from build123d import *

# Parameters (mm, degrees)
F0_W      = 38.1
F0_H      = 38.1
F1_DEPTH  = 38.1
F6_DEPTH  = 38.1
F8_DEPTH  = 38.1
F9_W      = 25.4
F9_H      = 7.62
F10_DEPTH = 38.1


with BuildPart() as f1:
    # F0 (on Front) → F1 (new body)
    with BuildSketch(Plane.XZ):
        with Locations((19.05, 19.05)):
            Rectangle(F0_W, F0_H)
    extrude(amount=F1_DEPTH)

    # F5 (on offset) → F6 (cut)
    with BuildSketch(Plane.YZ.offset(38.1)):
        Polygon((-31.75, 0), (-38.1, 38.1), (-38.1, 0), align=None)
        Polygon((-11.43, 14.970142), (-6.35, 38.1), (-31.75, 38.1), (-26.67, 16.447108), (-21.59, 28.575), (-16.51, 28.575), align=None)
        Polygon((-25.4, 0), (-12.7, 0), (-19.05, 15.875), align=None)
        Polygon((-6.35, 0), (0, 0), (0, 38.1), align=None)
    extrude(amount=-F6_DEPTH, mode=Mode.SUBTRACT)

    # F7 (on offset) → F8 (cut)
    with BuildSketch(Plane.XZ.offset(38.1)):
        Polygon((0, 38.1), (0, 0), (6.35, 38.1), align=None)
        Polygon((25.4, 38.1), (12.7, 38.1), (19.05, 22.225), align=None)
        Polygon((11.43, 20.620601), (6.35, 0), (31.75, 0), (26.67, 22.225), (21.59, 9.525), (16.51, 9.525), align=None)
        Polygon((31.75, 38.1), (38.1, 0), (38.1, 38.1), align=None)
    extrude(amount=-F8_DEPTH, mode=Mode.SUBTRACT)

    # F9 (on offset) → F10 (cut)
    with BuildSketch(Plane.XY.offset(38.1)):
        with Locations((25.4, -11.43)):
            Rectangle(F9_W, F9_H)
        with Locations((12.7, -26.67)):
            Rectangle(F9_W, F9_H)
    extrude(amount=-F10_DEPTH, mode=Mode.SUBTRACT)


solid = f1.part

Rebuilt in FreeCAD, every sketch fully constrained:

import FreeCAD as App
import Part
import Sketcher
Q = App.Units.Quantity


def add_polygon(sketch, points):
    """Adds a closed chain of lines whose ends are joined by coincident constraints."""
    first, n = sketch.GeometryCount, len(points)
    for a, b in zip(points, points[1:] + points[:1]):
        sketch.addGeometry(Part.LineSegment(App.Vector(*a, 0), App.Vector(*b, 0)), False)
    for i in range(n):
        sketch.addConstraint(Sketcher.Constraint("Coincident", first + i, 2, first + (i + 1) % n, 1))

doc = App.newDocument("Part")
body = doc.addObject("PartDesign::Body", "Body")

# Sketch on XZ plane
sketch1 = body.newObject("Sketcher::SketchObject", "Sketch")
sketch1.AttachmentSupport = (doc.getObject("XZ_Plane"), [""])
sketch1.MapMode = "FlatFace"
add_polygon(sketch1, [(0, 38), (0, 0), (38, 0), (38, 38)])  # lines 0-3
sketch1.addConstraint([
    Sketcher.Constraint("Vertical", 0),
    Sketcher.Constraint("Horizontal", 1),
    Sketcher.Constraint("Vertical", 2),
    Sketcher.Constraint("Horizontal", 3),
    Sketcher.Constraint("Coincident", 0, 2, -1, 1),
    Sketcher.Constraint("Equal", 3, 0),
    Sketcher.Constraint("DistanceX", 1, 1, 1, 2, Q("1.5 in")),
])
pad1 = body.newObject("PartDesign::Pad", "Pad")
pad1.Profile = sketch1
pad1.Length = Q("1.5 in")

# Sketch on YZ plane
sketch2 = body.newObject("Sketcher::SketchObject", "Sketch001")
sketch2.AttachmentSupport = (doc.getObject("YZ_Plane"), [""])
sketch2.MapMode = "FlatFace"
sketch2.AttachmentOffset = App.Placement(App.Vector(0, 0, 1.5 * 25.4), App.Rotation())
add_polygon(sketch2, [(-32, 0), (-38, 38), (-38, 0)])  # lines 0-2
add_polygon(sketch2, [(-11, 15), (-6, 38), (-32, 38), (-27, 16), (-22, 29), (-17, 29)])  # lines 3-8
add_polygon(sketch2, [(-25, 0), (-13, 0), (-19, 16)])  # lines 9-11
add_polygon(sketch2, [(-6, 0), (0, 0), (0, 38)])  # lines 12-14
sketch2.addConstraint([
    Sketcher.Constraint("Vertical", 1),
    Sketcher.Constraint("Horizontal", 2),
    Sketcher.Constraint("Horizontal", 4),
    Sketcher.Constraint("Horizontal", 7),
    Sketcher.Constraint("Horizontal", 9),
    Sketcher.Constraint("Horizontal", 12),
    Sketcher.Constraint("Vertical", 13),
    Sketcher.Constraint("Coincident", 12, 2, -1, 1),
    Sketcher.Constraint("PointOnObject", 1, 2, -1),
    Sketcher.Constraint("PointOnObject", 9, 2, -1),
    Sketcher.Constraint("Horizontal", 0, 2, 3, 2),
    Sketcher.Constraint("Horizontal", 4, 2, 13, 2),
    Sketcher.Constraint("Vertical", 2, 2, 4, 2),
    Sketcher.Constraint("Vertical", 3, 2, 14, 2),
    Sketcher.Constraint("Equal", 2, 12),
    Sketcher.Constraint("Equal", 10, 11),
    Sketcher.Constraint("DistanceX", 4, 2, 4, 1, Q("1 in")),
    Sketcher.Constraint("DistanceX", 7, 1, 7, 2, Q("0.2 in")),
    Sketcher.Constraint("DistanceX", 9, 1, 9, 2, Q("0.5 in")),
    Sketcher.Constraint("DistanceY", 1, 2, 1, 1, Q("1.5 in")),
    Sketcher.Constraint("DistanceX", 11, 2, -1, 1, Q("1 in")),
    Sketcher.Constraint("DistanceX", 1, 2, 9, 2, Q("1 in")),
    Sketcher.Constraint("DistanceX", 2, 2, 5, 2, Q("0.2 in")),
    Sketcher.Constraint("DistanceX", 5, 2, 6, 2, Q("0.2 in")),
    Sketcher.Constraint("DistanceX", 7, 2, 8, 2, Q("0.2 in")),
    Sketcher.Constraint("DistanceY", 10, 2, 6, 2, Q("0.5 in")),
    Sketcher.Constraint("DistanceY", -1, 1, 6, 2, Q("1.125 in")),
    Sketcher.Constraint("Distance", 5, 22.240821),
    Sketcher.Constraint("DistanceY", -1, 1, 8, 2, 14.970142),
])
pocket1 = body.newObject("PartDesign::Pocket", "Pocket")
pocket1.Profile = sketch2
pocket1.Length = Q("1.5 in")

# Sketch on XZ plane
sketch3 = body.newObject("Sketcher::SketchObject", "Sketch002")
sketch3.AttachmentSupport = (doc.getObject("XZ_Plane"), [""])
sketch3.MapMode = "FlatFace"
sketch3.AttachmentOffset = App.Placement(App.Vector(0, 0, 1.5 * 25.4), App.Rotation())
add_polygon(sketch3, [(0, 38), (0, 0), (6, 38)])  # lines 0-2
add_polygon(sketch3, [(25, 38), (13, 38), (19, 22)])  # lines 3-5
add_polygon(sketch3, [(11, 21), (6, 0), (32, 0), (27, 22), (22, 10), (17, 10)])  # lines 6-11
add_polygon(sketch3, [(32, 38), (38, 0), (38, 38)])  # lines 12-14
sketch3.addConstraint([
    Sketcher.Constraint("Vertical", 0),
    Sketcher.Constraint("Horizontal", 2),
    Sketcher.Constraint("Horizontal", 3),
    Sketcher.Constraint("Horizontal", 7),
    Sketcher.Constraint("Horizontal", 10),
    Sketcher.Constraint("Vertical", 13),
    Sketcher.Constraint("Horizontal", 14),
    Sketcher.Constraint("Coincident", 0, 2, -1, 1),
    Sketcher.Constraint("PointOnObject", 6, 2, -1),
    Sketcher.Constraint("PointOnObject", 12, 2, -1),
    Sketcher.Constraint("Parallel", 5, 9),
    Sketcher.Constraint("Horizontal", 2, 2, 3, 2),
    Sketcher.Constraint("Horizontal", 4, 2, 8, 2),
    Sketcher.Constraint("Horizontal", 5, 2, 13, 2),
    Sketcher.Constraint("Vertical", 1, 2, 6, 2),
    Sketcher.Constraint("Vertical", 7, 2, 14, 2),
    Sketcher.Constraint("Equal", 2, 14),
    Sketcher.Constraint("Equal", 4, 5),
    Sketcher.Constraint("DistanceX", 7, 1, 7, 2, Q("1 in")),
    Sketcher.Constraint("DistanceX", 3, 2, 3, 1, Q("0.5 in")),
    Sketcher.Constraint("DistanceX", 10, 2, 10, 1, Q("0.2 in")),
    Sketcher.Constraint("DistanceY", 0, 2, 0, 1, Q("1.5 in")),
    Sketcher.Constraint("DistanceX", -1, 1, 5, 2, Q("1 in")),
    Sketcher.Constraint("DistanceX", 3, 2, 13, 2, Q("1 in")),
    Sketcher.Constraint("DistanceX", 4, 2, 8, 2, Q("0.3 in")),
    Sketcher.Constraint("DistanceX", 4, 2, 9, 2, Q("0.1 in")),
    Sketcher.Constraint("DistanceY", 9, 2, 4, 2, Q("0.5 in")),
    Sketcher.Constraint("DistanceX", 11, 2, 4, 2, Q("0.3 in")),
    Sketcher.Constraint("DistanceY", -1, 1, 11, 2, 20.620601),
])
pocket2 = body.newObject("PartDesign::Pocket", "Pocket001")
pocket2.Profile = sketch3
pocket2.Length = Q("1.5 in")

# Sketch on XY plane
sketch4 = body.newObject("Sketcher::SketchObject", "Sketch003")
sketch4.AttachmentSupport = (doc.getObject("XY_Plane"), [""])
sketch4.MapMode = "FlatFace"
sketch4.AttachmentOffset = App.Placement(App.Vector(0, 0, 1.5 * 25.4), App.Rotation())
add_polygon(sketch4, [(13, -8), (13, -15), (38, -15), (38, -8)])  # lines 0-3
add_polygon(sketch4, [(0, -23), (0, -30), (25, -30), (25, -23)])  # lines 4-7
sketch4.addConstraint([
    Sketcher.Constraint("Vertical", 0),
    Sketcher.Constraint("Horizontal", 1),
    Sketcher.Constraint("Vertical", 2),
    Sketcher.Constraint("Horizontal", 3),
    Sketcher.Constraint("Vertical", 4),
    Sketcher.Constraint("Horizontal", 5),
    Sketcher.Constraint("Vertical", 6),
    Sketcher.Constraint("Horizontal", 7),
    Sketcher.Constraint("PointOnObject", 4, 2, -2),
    Sketcher.Constraint("Equal", 3, 5),
    Sketcher.Constraint("Equal", 2, 4),
    Sketcher.Constraint("DistanceX", 1, 1, 1, 2, Q("1 in")),
    Sketcher.Constraint("DistanceY", 0, 2, 0, 1, Q("0.3 in")),
    Sketcher.Constraint("DistanceX", -1, 1, 0, 2, Q("0.5 in")),
    Sketcher.Constraint("DistanceY", 0, 2, -1, 1, Q("0.6 in")),
    Sketcher.Constraint("DistanceY", 4, 2, -1, 1, Q("1.2 in")),
])
pocket3 = body.newObject("PartDesign::Pocket", "Pocket002")
pocket3.Profile = sketch4
pocket3.Length = Q("1.5 in")

doc.recompute()
